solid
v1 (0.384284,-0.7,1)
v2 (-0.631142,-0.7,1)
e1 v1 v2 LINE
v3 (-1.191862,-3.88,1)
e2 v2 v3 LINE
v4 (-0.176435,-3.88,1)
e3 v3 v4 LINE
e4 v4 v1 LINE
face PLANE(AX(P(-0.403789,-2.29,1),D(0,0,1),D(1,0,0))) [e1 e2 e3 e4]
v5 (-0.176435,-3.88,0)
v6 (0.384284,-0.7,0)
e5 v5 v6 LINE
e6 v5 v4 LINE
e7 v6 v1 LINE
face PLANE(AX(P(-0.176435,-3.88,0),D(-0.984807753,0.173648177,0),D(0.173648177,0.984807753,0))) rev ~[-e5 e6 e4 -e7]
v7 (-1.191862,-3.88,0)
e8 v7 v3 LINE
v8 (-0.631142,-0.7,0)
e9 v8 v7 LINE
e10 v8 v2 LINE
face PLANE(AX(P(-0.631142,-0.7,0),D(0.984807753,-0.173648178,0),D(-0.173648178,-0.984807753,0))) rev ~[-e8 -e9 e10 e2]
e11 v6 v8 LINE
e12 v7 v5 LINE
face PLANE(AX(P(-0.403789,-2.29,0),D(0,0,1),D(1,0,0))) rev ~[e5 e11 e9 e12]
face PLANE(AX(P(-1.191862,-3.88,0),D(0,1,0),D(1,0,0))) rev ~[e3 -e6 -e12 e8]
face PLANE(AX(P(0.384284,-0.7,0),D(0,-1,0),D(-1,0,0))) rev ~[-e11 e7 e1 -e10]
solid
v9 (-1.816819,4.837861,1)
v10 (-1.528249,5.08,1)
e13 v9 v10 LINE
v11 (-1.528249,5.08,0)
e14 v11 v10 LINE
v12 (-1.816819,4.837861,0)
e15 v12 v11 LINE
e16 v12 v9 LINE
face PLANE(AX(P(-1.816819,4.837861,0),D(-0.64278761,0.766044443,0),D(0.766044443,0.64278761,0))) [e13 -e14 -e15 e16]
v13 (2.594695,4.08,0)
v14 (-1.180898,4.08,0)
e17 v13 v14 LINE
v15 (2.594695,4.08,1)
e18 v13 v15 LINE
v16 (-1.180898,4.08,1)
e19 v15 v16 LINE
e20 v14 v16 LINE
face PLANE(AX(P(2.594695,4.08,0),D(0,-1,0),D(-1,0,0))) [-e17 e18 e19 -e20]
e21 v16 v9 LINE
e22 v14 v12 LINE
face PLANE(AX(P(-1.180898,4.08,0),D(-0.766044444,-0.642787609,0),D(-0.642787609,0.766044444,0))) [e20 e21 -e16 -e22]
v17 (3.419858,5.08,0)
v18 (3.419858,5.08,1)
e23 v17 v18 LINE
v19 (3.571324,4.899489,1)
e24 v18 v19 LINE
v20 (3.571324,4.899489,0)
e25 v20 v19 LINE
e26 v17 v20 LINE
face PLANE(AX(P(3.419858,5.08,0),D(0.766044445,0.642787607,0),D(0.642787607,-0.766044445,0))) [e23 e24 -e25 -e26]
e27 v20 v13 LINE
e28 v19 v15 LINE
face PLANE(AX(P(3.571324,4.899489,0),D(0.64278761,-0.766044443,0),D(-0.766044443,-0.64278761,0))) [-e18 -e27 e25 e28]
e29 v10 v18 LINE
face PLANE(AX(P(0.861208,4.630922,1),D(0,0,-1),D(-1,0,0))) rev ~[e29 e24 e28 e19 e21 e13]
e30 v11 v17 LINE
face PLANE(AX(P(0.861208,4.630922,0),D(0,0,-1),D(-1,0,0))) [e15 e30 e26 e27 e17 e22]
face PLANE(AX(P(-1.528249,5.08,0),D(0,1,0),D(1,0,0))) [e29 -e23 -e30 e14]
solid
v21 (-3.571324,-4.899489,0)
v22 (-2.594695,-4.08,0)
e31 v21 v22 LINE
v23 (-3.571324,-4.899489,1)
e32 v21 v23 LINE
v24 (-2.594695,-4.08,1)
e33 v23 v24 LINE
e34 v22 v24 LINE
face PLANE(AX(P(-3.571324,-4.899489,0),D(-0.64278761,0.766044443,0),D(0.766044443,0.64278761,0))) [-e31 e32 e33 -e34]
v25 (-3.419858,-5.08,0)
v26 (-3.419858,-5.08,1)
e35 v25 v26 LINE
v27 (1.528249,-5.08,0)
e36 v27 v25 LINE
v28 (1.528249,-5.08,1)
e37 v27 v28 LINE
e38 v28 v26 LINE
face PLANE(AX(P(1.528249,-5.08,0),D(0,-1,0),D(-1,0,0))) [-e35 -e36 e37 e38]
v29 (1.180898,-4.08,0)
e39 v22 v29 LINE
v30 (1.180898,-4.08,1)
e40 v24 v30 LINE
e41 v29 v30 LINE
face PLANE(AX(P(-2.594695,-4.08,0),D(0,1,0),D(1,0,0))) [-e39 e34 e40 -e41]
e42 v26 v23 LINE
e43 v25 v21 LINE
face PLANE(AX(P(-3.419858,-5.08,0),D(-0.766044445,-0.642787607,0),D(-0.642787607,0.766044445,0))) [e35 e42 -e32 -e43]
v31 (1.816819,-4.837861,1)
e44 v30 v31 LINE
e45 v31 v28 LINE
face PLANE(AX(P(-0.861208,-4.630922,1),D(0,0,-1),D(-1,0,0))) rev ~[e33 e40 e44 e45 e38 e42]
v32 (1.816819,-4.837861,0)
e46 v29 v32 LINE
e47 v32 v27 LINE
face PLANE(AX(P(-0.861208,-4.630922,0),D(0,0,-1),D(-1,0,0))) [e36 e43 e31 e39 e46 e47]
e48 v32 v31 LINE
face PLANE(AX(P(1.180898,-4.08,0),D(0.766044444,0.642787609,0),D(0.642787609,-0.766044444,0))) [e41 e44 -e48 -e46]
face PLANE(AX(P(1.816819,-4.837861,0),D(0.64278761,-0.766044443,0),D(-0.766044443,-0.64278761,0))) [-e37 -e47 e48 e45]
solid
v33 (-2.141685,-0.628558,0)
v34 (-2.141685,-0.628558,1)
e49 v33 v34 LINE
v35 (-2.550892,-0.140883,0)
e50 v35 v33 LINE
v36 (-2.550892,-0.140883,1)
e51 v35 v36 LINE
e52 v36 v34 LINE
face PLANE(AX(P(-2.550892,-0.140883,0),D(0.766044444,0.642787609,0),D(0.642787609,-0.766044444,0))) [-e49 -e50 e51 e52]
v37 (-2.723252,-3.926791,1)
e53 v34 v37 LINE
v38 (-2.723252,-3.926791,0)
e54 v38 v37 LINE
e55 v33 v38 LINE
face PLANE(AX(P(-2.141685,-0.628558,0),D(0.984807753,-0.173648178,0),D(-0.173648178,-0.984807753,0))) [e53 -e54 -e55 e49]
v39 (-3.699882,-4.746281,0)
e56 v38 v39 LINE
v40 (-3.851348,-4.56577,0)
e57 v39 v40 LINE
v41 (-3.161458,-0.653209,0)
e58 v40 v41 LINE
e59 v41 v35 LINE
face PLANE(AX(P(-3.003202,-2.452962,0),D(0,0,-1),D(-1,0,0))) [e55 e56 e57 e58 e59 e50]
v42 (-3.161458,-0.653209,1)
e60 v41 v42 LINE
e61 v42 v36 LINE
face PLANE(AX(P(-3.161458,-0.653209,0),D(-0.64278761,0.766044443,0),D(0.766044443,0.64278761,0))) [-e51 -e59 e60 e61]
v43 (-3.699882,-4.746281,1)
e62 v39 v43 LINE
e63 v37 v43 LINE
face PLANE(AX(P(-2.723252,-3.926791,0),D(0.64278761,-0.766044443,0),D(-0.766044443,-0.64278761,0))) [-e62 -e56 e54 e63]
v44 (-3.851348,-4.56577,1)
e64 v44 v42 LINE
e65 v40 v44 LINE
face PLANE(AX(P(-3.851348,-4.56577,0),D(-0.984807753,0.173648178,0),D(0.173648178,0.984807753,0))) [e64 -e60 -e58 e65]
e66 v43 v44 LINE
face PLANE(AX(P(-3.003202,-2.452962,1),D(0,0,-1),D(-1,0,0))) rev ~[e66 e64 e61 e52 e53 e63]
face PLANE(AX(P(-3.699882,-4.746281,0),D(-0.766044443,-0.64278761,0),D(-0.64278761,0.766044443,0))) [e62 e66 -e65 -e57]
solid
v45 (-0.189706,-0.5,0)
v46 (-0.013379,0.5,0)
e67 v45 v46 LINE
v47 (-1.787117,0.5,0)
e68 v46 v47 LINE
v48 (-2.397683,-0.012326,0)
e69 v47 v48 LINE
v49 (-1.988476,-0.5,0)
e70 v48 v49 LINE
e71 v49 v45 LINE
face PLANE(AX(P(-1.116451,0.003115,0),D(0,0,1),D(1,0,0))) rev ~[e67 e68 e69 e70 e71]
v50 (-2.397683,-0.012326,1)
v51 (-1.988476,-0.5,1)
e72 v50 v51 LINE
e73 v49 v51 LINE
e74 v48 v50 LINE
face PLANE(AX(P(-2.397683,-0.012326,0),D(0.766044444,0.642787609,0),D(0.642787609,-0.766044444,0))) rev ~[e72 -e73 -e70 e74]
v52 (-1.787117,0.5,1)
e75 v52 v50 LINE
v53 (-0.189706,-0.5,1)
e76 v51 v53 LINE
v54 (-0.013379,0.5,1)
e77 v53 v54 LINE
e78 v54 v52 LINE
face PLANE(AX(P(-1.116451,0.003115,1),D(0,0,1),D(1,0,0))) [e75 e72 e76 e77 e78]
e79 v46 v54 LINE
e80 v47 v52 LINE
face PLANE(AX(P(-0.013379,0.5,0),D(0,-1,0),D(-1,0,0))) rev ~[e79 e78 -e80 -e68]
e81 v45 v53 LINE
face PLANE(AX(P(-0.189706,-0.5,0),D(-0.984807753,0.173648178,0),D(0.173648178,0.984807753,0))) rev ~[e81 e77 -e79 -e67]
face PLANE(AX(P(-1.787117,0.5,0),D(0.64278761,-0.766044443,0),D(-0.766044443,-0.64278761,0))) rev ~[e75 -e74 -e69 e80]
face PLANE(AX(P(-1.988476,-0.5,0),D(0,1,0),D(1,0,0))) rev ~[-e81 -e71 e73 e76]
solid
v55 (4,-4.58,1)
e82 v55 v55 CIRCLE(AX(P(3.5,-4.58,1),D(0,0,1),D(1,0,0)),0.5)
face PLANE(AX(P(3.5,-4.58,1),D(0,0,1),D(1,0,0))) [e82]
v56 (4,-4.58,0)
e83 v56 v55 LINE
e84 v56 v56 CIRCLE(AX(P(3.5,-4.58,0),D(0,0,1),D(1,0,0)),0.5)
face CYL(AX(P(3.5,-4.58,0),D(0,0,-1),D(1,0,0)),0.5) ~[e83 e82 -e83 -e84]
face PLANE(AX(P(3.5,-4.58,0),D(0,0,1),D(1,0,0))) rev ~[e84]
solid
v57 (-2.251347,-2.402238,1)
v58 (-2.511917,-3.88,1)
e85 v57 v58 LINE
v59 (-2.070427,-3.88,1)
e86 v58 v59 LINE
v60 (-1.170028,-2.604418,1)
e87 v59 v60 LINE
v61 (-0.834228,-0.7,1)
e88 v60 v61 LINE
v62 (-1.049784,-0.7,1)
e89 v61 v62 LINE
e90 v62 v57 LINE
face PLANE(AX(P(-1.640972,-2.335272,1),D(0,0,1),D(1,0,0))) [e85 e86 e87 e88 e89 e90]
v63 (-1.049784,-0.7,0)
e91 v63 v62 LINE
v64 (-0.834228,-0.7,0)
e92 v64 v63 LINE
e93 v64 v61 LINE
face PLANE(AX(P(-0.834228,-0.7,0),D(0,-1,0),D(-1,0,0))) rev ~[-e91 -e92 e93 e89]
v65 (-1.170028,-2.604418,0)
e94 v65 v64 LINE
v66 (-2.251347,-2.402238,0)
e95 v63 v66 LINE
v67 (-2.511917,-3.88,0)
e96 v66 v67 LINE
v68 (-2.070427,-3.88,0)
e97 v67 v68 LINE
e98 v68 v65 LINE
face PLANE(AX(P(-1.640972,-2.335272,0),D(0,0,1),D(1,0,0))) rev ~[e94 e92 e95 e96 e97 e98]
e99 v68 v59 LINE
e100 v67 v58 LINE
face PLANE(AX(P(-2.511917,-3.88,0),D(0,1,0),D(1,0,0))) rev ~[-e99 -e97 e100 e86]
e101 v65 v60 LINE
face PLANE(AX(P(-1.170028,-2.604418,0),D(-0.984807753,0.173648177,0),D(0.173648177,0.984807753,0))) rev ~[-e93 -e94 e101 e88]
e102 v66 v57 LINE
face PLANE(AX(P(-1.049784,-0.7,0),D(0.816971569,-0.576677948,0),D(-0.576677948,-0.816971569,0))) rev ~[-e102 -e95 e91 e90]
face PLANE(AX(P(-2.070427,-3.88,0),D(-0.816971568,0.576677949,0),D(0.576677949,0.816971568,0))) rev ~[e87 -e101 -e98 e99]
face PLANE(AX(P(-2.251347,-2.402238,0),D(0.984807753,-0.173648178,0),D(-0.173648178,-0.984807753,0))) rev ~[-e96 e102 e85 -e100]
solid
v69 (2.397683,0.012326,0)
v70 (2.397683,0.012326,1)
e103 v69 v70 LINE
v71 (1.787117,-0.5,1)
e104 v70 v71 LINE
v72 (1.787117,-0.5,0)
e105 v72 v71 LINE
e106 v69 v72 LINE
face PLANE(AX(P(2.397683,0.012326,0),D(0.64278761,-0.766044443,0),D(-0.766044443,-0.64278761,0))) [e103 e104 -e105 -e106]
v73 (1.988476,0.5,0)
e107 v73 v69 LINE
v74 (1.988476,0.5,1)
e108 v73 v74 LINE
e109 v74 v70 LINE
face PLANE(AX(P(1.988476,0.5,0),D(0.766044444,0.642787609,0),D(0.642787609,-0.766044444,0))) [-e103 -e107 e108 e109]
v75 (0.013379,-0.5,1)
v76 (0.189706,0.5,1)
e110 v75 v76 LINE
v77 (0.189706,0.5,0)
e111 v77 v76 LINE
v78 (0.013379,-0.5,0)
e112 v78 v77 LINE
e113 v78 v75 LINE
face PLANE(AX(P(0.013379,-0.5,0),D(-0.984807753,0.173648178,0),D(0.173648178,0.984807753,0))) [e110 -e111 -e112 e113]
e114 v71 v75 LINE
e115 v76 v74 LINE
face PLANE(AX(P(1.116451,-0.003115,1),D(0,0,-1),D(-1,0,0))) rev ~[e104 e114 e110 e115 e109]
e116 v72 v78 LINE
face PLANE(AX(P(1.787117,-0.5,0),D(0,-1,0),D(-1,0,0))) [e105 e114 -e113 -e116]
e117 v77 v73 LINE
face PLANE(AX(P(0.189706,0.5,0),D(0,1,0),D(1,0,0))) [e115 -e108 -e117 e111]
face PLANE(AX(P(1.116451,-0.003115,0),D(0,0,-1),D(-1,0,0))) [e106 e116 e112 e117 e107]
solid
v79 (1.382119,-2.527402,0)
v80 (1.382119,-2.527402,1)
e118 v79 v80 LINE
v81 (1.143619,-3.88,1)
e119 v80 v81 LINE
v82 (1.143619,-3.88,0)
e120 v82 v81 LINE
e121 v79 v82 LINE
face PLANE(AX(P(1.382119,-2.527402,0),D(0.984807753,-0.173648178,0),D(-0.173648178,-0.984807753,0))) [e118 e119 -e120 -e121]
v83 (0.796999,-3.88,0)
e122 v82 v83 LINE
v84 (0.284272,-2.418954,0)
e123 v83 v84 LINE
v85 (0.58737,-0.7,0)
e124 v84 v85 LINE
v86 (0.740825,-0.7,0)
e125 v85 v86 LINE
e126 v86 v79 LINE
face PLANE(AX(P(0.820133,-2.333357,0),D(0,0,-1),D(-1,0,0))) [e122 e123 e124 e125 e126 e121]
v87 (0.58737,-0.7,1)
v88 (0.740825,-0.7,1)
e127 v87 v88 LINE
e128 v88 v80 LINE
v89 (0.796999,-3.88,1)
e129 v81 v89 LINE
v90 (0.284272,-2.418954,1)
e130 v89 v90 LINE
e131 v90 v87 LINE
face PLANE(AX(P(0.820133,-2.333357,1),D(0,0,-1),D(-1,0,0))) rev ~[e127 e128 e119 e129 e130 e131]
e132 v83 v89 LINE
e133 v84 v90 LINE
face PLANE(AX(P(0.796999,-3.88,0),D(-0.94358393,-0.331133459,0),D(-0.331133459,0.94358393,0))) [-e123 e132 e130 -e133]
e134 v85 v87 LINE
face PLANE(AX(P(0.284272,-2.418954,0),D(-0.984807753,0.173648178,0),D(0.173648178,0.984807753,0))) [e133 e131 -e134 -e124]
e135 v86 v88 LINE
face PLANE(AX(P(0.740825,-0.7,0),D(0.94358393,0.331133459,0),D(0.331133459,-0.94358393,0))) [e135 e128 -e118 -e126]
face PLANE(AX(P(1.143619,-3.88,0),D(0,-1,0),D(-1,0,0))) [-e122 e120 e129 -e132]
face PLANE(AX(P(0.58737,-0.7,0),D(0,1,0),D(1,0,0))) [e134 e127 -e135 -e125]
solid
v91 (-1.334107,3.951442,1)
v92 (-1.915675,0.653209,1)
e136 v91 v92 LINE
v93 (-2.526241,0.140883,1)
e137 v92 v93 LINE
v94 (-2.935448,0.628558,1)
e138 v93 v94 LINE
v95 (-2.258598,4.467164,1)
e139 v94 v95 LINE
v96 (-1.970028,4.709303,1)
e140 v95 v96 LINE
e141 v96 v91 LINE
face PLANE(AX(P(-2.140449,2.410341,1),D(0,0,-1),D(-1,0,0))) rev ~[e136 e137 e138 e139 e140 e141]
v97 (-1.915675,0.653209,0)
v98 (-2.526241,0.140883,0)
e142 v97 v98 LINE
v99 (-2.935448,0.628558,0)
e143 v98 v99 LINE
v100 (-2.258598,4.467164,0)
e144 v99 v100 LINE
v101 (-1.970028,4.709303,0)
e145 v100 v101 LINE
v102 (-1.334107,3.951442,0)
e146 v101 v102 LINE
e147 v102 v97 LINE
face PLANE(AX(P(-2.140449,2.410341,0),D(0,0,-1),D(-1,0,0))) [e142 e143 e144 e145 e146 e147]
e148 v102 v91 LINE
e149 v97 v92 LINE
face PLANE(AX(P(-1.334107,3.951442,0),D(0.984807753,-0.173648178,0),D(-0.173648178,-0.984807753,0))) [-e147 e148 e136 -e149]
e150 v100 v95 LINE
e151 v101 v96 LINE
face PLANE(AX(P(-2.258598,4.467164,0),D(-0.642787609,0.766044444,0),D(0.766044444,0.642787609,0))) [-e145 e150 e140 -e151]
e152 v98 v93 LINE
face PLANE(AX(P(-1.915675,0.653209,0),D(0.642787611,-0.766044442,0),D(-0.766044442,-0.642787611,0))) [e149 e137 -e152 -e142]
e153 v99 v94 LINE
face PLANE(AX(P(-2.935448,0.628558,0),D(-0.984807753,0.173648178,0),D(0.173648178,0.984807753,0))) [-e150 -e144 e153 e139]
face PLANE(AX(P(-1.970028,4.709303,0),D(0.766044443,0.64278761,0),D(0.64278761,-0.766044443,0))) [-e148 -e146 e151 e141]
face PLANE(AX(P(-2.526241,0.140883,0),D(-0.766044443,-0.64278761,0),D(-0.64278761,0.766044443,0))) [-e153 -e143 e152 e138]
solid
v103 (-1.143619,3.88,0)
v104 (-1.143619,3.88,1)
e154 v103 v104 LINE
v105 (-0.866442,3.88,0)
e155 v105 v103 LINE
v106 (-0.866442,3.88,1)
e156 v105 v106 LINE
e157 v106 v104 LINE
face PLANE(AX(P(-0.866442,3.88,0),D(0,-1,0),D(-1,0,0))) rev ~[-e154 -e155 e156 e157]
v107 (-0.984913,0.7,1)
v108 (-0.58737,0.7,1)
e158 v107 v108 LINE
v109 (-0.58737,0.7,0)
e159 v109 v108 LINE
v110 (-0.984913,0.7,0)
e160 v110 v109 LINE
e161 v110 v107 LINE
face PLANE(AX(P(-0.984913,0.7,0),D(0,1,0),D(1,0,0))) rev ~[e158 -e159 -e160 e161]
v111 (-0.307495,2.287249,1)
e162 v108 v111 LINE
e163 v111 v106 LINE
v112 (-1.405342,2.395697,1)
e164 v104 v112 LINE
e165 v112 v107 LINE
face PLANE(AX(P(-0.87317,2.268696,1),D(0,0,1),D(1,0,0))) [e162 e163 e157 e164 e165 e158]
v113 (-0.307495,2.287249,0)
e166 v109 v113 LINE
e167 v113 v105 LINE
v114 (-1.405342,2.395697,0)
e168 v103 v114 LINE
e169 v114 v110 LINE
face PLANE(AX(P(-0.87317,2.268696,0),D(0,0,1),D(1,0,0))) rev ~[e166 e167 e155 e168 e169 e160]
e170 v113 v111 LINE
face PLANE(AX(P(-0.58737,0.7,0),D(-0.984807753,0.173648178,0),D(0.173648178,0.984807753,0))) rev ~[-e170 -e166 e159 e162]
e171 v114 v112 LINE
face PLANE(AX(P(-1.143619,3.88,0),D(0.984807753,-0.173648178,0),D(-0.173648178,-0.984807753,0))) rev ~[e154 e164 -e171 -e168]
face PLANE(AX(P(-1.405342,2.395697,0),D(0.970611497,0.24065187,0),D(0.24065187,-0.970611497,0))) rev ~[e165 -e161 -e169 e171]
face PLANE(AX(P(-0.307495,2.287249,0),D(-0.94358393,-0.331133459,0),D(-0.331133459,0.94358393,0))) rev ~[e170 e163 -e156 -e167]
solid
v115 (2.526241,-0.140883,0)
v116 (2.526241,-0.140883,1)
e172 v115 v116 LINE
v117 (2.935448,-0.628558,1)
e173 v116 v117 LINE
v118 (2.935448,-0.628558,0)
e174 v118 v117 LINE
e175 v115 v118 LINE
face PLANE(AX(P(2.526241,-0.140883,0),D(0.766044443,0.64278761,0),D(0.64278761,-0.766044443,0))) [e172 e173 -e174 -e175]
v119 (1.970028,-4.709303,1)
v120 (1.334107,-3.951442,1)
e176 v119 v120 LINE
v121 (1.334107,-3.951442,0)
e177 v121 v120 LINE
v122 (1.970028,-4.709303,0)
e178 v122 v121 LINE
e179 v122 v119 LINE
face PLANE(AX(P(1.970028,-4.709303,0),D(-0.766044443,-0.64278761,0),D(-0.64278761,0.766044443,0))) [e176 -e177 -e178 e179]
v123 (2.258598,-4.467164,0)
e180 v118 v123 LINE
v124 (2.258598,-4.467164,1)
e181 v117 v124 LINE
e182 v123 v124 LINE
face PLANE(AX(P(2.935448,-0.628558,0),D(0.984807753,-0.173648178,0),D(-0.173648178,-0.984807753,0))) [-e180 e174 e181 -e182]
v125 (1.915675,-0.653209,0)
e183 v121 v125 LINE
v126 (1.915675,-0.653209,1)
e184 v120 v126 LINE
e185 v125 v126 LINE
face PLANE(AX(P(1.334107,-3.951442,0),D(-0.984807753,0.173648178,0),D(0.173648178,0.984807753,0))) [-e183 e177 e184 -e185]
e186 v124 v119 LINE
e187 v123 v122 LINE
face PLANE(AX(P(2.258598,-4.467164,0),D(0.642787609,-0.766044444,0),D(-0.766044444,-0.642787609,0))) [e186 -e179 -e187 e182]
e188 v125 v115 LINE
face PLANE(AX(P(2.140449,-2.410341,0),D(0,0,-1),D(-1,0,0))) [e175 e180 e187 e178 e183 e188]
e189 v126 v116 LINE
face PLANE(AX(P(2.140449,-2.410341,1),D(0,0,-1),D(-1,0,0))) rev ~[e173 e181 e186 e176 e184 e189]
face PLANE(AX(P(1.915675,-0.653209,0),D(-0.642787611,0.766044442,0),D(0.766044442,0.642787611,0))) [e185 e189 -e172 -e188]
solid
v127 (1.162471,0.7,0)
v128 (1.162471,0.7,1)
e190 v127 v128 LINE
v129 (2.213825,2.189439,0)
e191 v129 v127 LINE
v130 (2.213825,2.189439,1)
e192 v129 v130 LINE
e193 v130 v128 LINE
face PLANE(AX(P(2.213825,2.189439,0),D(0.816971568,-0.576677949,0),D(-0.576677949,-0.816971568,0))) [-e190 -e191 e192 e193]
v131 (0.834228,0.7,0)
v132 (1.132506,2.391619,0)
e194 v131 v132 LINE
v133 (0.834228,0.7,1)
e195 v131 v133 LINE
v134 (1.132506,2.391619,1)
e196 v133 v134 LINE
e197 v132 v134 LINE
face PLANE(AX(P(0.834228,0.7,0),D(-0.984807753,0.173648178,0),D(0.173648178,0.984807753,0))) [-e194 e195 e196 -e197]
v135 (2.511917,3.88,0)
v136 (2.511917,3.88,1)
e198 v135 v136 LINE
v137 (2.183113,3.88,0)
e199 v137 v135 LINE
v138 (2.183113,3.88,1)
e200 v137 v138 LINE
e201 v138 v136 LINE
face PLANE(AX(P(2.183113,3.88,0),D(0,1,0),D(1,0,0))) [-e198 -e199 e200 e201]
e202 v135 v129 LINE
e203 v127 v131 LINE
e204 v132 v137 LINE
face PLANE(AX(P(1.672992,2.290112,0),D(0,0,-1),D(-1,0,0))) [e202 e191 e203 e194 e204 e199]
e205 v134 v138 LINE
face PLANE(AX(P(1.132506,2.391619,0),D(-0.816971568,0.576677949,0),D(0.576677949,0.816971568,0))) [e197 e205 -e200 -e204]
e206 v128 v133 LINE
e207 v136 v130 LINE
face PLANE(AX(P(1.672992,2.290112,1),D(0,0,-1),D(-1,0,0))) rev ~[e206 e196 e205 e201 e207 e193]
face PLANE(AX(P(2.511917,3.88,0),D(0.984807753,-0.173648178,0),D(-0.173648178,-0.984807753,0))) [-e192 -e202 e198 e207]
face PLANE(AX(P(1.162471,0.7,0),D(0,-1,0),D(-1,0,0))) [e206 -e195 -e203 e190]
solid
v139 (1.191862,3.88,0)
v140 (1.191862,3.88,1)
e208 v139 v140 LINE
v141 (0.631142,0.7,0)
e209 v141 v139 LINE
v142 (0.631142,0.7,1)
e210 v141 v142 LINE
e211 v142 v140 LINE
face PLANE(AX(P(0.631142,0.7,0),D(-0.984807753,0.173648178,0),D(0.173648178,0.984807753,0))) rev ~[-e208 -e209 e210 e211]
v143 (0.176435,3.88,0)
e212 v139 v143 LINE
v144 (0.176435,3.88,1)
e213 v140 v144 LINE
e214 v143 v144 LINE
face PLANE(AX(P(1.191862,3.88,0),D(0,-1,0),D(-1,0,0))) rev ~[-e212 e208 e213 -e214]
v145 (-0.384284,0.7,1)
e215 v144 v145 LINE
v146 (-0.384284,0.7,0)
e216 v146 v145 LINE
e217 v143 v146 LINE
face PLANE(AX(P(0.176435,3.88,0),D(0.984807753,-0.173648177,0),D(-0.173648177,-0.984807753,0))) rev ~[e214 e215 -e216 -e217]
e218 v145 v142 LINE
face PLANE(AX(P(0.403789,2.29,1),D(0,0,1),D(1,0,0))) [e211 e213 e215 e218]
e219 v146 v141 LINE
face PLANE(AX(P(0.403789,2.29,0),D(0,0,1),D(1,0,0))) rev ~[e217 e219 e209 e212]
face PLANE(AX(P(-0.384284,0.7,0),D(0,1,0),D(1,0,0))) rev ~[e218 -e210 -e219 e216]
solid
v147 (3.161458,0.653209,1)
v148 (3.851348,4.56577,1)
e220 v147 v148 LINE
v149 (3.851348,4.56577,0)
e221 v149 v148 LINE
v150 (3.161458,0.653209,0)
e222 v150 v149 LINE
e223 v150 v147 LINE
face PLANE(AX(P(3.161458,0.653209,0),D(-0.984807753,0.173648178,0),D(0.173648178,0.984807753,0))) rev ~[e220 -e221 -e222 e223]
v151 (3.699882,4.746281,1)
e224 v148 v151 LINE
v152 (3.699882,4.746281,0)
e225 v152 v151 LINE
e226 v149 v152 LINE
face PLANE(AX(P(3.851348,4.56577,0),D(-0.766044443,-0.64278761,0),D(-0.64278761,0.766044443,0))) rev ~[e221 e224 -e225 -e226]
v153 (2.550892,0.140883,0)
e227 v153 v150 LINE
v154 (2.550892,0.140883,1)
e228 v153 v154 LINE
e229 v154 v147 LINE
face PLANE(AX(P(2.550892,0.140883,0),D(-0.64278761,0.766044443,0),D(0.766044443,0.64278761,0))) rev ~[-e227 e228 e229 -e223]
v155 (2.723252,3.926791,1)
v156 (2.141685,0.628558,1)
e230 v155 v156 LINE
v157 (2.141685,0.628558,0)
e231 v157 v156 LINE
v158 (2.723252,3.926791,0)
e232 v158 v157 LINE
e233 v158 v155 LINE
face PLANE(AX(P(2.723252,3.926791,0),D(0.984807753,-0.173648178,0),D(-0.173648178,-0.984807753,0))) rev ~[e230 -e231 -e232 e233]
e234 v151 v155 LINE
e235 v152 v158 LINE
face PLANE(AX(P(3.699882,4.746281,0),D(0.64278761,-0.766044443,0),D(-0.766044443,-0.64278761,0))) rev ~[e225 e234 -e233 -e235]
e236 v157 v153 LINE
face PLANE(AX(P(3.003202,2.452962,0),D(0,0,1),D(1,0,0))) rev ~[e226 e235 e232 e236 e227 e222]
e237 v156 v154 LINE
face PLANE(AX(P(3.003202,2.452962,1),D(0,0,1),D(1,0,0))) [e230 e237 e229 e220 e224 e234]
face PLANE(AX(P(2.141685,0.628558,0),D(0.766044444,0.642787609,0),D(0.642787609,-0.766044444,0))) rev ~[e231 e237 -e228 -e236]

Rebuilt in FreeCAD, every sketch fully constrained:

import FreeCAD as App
import Part
import Sketcher
from FreeCAD import Vector
Q = App.Units.Quantity

doc = App.newDocument("Part")
body = doc.addObject("PartDesign::Body", "Body")

# Sketch on XY plane
sketch1 = doc.addObject("Sketcher::SketchObject", "Sketch")
body.addObject(sketch1)
sketch1.AttachmentSupport = (doc.XY_Plane, [""])
sketch1.MapMode = "FlatFace"
sketch1.addGeometry([
    Part.LineSegment(Vector(-2.258598, 4.467164, 0), Vector(-2.935448, 0.628558, 0)),  # 0
    Part.LineSegment(Vector(-2.935448, 0.628558, 0), Vector(-2.526241, 0.140883, 0)),  # 1
    Part.LineSegment(Vector(-2.526241, 0.140883, 0), Vector(-1.915675, 0.653209, 0)),  # 2
    Part.LineSegment(Vector(-1.915675, 0.653209, 0), Vector(-1.334107, 3.951442, 0)),  # 3
    Part.LineSegment(Vector(-1.334107, 3.951442, 0), Vector(-1.970028, 4.709303, 0)),  # 4
    Part.LineSegment(Vector(-1.970028, 4.709303, 0), Vector(-2.258598, 4.467164, 0)),  # 5
], False)
sketch1.addConstraint([
    Sketcher.Constraint("Coincident", 0, 2, 1, 1),
    Sketcher.Constraint("Coincident", 1, 2, 2, 1),
    Sketcher.Constraint("Coincident", 2, 2, 3, 1),
    Sketcher.Constraint("Coincident", 3, 2, 4, 1),
    Sketcher.Constraint("Coincident", 4, 2, 5, 1),
    Sketcher.Constraint("Coincident", 5, 2, 0, 1),
    Sketcher.Constraint("Perpendicular", 1, 2),
    Sketcher.Constraint("Parallel", 0, 3),
    Sketcher.Constraint("Perpendicular", 2, 4),
    Sketcher.Constraint("Perpendicular", 4, 5),
    Sketcher.Constraint("Angle", 0, Q("-100 deg")),
    Sketcher.Constraint("Angle", 1, Q("-50 deg")),
    Sketcher.Constraint("Distance", 5, 0.376701),
    Sketcher.Constraint("DistanceX", 5, 2, -1, 1, 2.258598),
    Sketcher.Constraint("DistanceX", 0, 2, -1, 1, 2.935448),
    Sketcher.Constraint("DistanceX", 1, 2, -1, 1, 2.526241),
    Sketcher.Constraint("DistanceY", -1, 1, 2, 2, 0.653209),
    Sketcher.Constraint("DistanceY", 0, 2, 2, 2, 0.024651),
])
pad1 = doc.addObject("PartDesign::Pad", "Pad")
body.addObject(pad1)
pad1.Profile = sketch1
pad1.Length = 1
body2 = doc.addObject("PartDesign::Body", "Body001")

# Sketch on XY plane
sketch2 = doc.addObject("Sketcher::SketchObject", "Sketch001")
body2.addObject(sketch2)
sketch2.AttachmentSupport = (doc.getObject("XY_Plane001"), [""])
sketch2.MapMode = "FlatFace"
sketch2.addGeometry([
    Part.LineSegment(Vector(-2.550892, -0.140883, 0), Vector(-3.161458, -0.653209, 0)),  # 0
    Part.LineSegment(Vector(-3.161458, -0.653209, 0), Vector(-3.851348, -4.56577, 0)),  # 1
    Part.LineSegment(Vector(-3.851348, -4.56577, 0), Vector(-3.699882, -4.746281, 0)),  # 2
    Part.LineSegment(Vector(-3.699882, -4.746281, 0), Vector(-2.723252, -3.926791, 0)),  # 3
    Part.LineSegment(Vector(-2.723252, -3.926791, 0), Vector(-2.141685, -0.628558, 0)),  # 4
    Part.LineSegment(Vector(-2.141685, -0.628558, 0), Vector(-2.550892, -0.140883, 0)),  # 5
], False)
sketch2.addConstraint([
    Sketcher.Constraint("Coincident", 0, 2, 1, 1),
    Sketcher.Constraint("Coincident", 1, 2, 2, 1),
    Sketcher.Constraint("Coincident", 2, 2, 3, 1),
    Sketcher.Constraint("Coincident", 3, 2, 4, 1),
    Sketcher.Constraint("Coincident", 4, 2, 5, 1),
    Sketcher.Constraint("Coincident", 5, 2, 0, 1),
    Sketcher.Constraint("Perpendicular", 0, 2),
    Sketcher.Constraint("Perpendicular", 2, 3),
    Sketcher.Constraint("Parallel", 1, 4),
    Sketcher.Constraint("Perpendicular", 3, 5),
    Sketcher.Constraint("Angle", 0, Q("-140 deg")),
    Sketcher.Constraint("Angle", 1, Q("-100 deg")),
    Sketcher.Constraint("Distance", 3, 1.274899),
    Sketcher.Constraint("Distance", 1, 3.972919),
    Sketcher.Constraint("Distance", 2, 0.23564),
    Sketcher.Constraint("DistanceX", 0, 2, -1, 1, 3.161458),
    Sketcher.Constraint("DistanceY", 0, 2, -1, 1, 0.653209),
    Sketcher.Constraint("DistanceY", 0, 2, 4, 2, 0.024651),
])
pad2 = doc.addObject("PartDesign::Pad", "Pad001")
body2.addObject(pad2)
pad2.Profile = sketch2
pad2.Length = 1
body3 = doc.addObject("PartDesign::Body", "Body002")

# Sketch on XY plane
sketch3 = doc.addObject("Sketcher::SketchObject", "Sketch002")
body3.addObject(sketch3)
sketch3.AttachmentSupport = (doc.getObject("XY_Plane002"), [""])
sketch3.MapMode = "FlatFace"
sketch3.addGeometry([
    Part.LineSegment(Vector(-2.594695, -4.08, 0), Vector(-3.571324, -4.899489, 0)),  # 0
    Part.LineSegment(Vector(-3.571324, -4.899489, 0), Vector(-3.419858, -5.08, 0)),  # 1
    Part.LineSegment(Vector(-3.419858, -5.08, 0), Vector(1.528249, -5.08, 0)),  # 2
    Part.LineSegment(Vector(1.528249, -5.08, 0), Vector(1.816819, -4.837861, 0)),  # 3
    Part.LineSegment(Vector(1.816819, -4.837861, 0), Vector(1.180898, -4.08, 0)),  # 4
    Part.LineSegment(Vector(1.180898, -4.08, 0), Vector(-2.594695, -4.08, 0)),  # 5
], False)
sketch3.addConstraint([
    Sketcher.Constraint("Coincident", 0, 2, 1, 1),
    Sketcher.Constraint("Coincident", 1, 2, 2, 1),
    Sketcher.Constraint("Coincident", 2, 2, 3, 1),
    Sketcher.Constraint("Coincident", 3, 2, 4, 1),
    Sketcher.Constraint("Coincident", 4, 2, 5, 1),
    Sketcher.Constraint("Coincident", 5, 2, 0, 1),
    Sketcher.Constraint("Horizontal", 2),
    Sketcher.Constraint("Horizontal", 5),
    Sketcher.Constraint("Perpendicular", 0, 1),
    Sketcher.Constraint("Perpendicular", 1, 3),
    Sketcher.Constraint("Perpendicular", 3, 4),
    Sketcher.Constraint("Angle", 0, Q("-140 deg")),
    Sketcher.Constraint("DistanceY", 2, 2, 4, 2, 1.0),
    Sketcher.Constraint("DistanceY", 1, 2, -1, 1, 5.08),
    Sketcher.Constraint("Distance", 0, 1.274899),
    Sketcher.Constraint("Distance", 3, 0.376701),
    Sketcher.Constraint("DistanceX", -1, 1, 4, 2, 1.180898),
    Sketcher.Constraint("DistanceX", 2, 1, 2, 2, 4.948107),
])
pad3 = doc.addObject("PartDesign::Pad", "Pad002")
body3.addObject(pad3)
pad3.Profile = sketch3
pad3.Length = 1
body4 = doc.addObject("PartDesign::Body", "Body003")

# Sketch on XY plane
sketch4 = doc.addObject("Sketcher::SketchObject", "Sketch003")
body4.addObject(sketch4)
sketch4.AttachmentSupport = (doc.getObject("XY_Plane003"), [""])
sketch4.MapMode = "FlatFace"
sketch4.addGeometry([
    Part.LineSegment(Vector(2.526241, -0.140883, 0), Vector(1.915675, -0.653209, 0)),  # 0
    Part.LineSegment(Vector(1.915675, -0.653209, 0), Vector(1.334107, -3.951442, 0)),  # 1
    Part.LineSegment(Vector(1.334107, -3.951442, 0), Vector(1.970028, -4.709303, 0)),  # 2
    Part.LineSegment(Vector(1.970028, -4.709303, 0), Vector(2.258598, -4.467164, 0)),  # 3
    Part.LineSegment(Vector(2.258598, -4.467164, 0), Vector(2.935448, -0.628558, 0)),  # 4
    Part.LineSegment(Vector(2.935448, -0.628558, 0), Vector(2.526241, -0.140883, 0)),  # 5
], False)
sketch4.addConstraint([
    Sketcher.Constraint("Coincident", 0, 2, 1, 1),
    Sketcher.Constraint("Coincident", 1, 2, 2, 1),
    Sketcher.Constraint("Coincident", 2, 2, 3, 1),
    Sketcher.Constraint("Coincident", 3, 2, 4, 1),
    Sketcher.Constraint("Coincident", 4, 2, 5, 1),
    Sketcher.Constraint("Coincident", 5, 2, 0, 1),
    Sketcher.Constraint("Perpendicular", 0, 2),
    Sketcher.Constraint("Perpendicular", 2, 3),
    Sketcher.Constraint("Parallel", 1, 4),
    Sketcher.Constraint("Perpendicular", 3, 5),
    Sketcher.Constraint("Angle", 0, Q("-140 deg")),
    Sketcher.Constraint("Angle", 1, Q("-100 deg")),
    Sketcher.Constraint("Distance", 3, 0.376701),
    Sketcher.Constraint("DistanceX", -1, 1, 3, 2, 2.258598),
    Sketcher.Constraint("DistanceY", 0, 2, -1, 1, 0.653209),
    Sketcher.Constraint("DistanceX", -1, 1, 4, 2, 2.935448),
    Sketcher.Constraint("DistanceX", -1, 1, 5, 2, 2.526241),
    Sketcher.Constraint("DistanceX", 1, 2, 2, 2, 0.635921),
])
pad4 = doc.addObject("PartDesign::Pad", "Pad003")
body4.addObject(pad4)
pad4.Profile = sketch4
pad4.Length = 1
body5 = doc.addObject("PartDesign::Body", "Body004")

# Sketch on XY plane
sketch5 = doc.addObject("Sketcher::SketchObject", "Sketch004")
body5.addObject(sketch5)
sketch5.AttachmentSupport = (doc.getObject("XY_Plane004"), [""])
sketch5.MapMode = "FlatFace"
sketch5.addGeometry([
    Part.LineSegment(Vector(2.141685, 0.628558, 0), Vector(2.550892, 0.140883, 0)),  # 0
    Part.LineSegment(Vector(2.550892, 0.140883, 0), Vector(3.161458, 0.653209, 0)),  # 1
    Part.LineSegment(Vector(3.161458, 0.653209, 0), Vector(3.851348, 4.56577, 0)),  # 2
    Part.LineSegment(Vector(3.851348, 4.56577, 0), Vector(3.699882, 4.746281, 0)),  # 3
    Part.LineSegment(Vector(3.699882, 4.746281, 0), Vector(2.723252, 3.926791, 0)),  # 4
    Part.LineSegment(Vector(2.723252, 3.926791, 0), Vector(2.141685, 0.628558, 0)),  # 5
], False)
sketch5.addConstraint([
    Sketcher.Constraint("Coincident", 0, 2, 1, 1),
    Sketcher.Constraint("Coincident", 1, 2, 2, 1),
    Sketcher.Constraint("Coincident", 2, 2, 3, 1),
    Sketcher.Constraint("Coincident", 3, 2, 4, 1),
    Sketcher.Constraint("Coincident", 4, 2, 5, 1),
    Sketcher.Constraint("Coincident", 5, 2, 0, 1),
    Sketcher.Constraint("Perpendicular", 0, 1),
    Sketcher.Constraint("Perpendicular", 1, 3),
    Sketcher.Constraint("Perpendicular", 3, 4),
    Sketcher.Constraint("Parallel", 2, 5),
    Sketcher.Constraint("Angle", 0, Q("-50 deg")),
    Sketcher.Constraint("Angle", 2, Q("80 deg")),
    Sketcher.Constraint("Distance", 4, 1.274899),
    Sketcher.Constraint("Distance", 2, 3.972919),
    Sketcher.Constraint("Distance", 3, 0.23564),
    Sketcher.Constraint("DistanceX", -1, 1, 1, 2, 3.161458),
    Sketcher.Constraint("DistanceY", -1, 1, 1, 2, 0.653209),
    Sketcher.Constraint("DistanceX", 0, 2, 3, 2, 1.14899),
])
pad5 = doc.addObject("PartDesign::Pad", "Pad004")
body5.addObject(pad5)
pad5.Profile = sketch5
pad5.Length = 1
body6 = doc.addObject("PartDesign::Body", "Body005")

# Sketch on XY plane
sketch6 = doc.addObject("Sketcher::SketchObject", "Sketch005")
body6.addObject(sketch6)
sketch6.AttachmentSupport = (doc.getObject("XY_Plane005"), [""])
sketch6.MapMode = "FlatFace"
sketch6.addGeometry([
    Part.LineSegment(Vector(-1.528249, 5.08, 0), Vector(-1.816819, 4.837861, 0)),  # 0
    Part.LineSegment(Vector(-1.816819, 4.837861, 0), Vector(-1.180898, 4.08, 0)),  # 1
    Part.LineSegment(Vector(-1.180898, 4.08, 0), Vector(2.594695, 4.08, 0)),  # 2
    Part.LineSegment(Vector(2.594695, 4.08, 0), Vector(3.571324, 4.899489, 0)),  # 3
    Part.LineSegment(Vector(3.571324, 4.899489, 0), Vector(3.419858, 5.08, 0)),  # 4
    Part.LineSegment(Vector(3.419858, 5.08, 0), Vector(-1.528249, 5.08, 0)),  # 5
], False)
sketch6.addConstraint([
    Sketcher.Constraint("Coincident", 0, 2, 1, 1),
    Sketcher.Constraint("Coincident", 1, 2, 2, 1),
    Sketcher.Constraint("Coincident", 2, 2, 3, 1),
    Sketcher.Constraint("Coincident", 3, 2, 4, 1),
    Sketcher.Constraint("Coincident", 4, 2, 5, 1),
    Sketcher.Constraint("Coincident", 5, 2, 0, 1),
    Sketcher.Constraint("Horizontal", 2),
    Sketcher.Constraint("Horizontal", 5),
    Sketcher.Constraint("Perpendicular", 0, 1),
    Sketcher.Constraint("Perpendicular", 1, 3),
    Sketcher.Constraint("Perpendicular", 3, 4),
    Sketcher.Constraint("Angle", 0, Q("-140 deg")),
    Sketcher.Constraint("DistanceY", 2, 2, 4, 2, 1.0),
    Sketcher.Constraint("DistanceY", -1, 1, 1, 2, 4.08),
    Sketcher.Constraint("Distance", 0, 0.376701),
    Sketcher.Constraint("Distance", 3, 1.274899),
    Sketcher.Constraint("DistanceX", 1, 2, -1, 1, 1.180898),
    Sketcher.Constraint("DistanceX", 2, 1, 2, 2, 3.775593),
])
pad6 = doc.addObject("PartDesign::Pad", "Pad005")
body6.addObject(pad6)
pad6.Profile = sketch6
pad6.Length = 1
body7 = doc.addObject("PartDesign::Body", "Body006")

# Sketch on XY plane
sketch7 = doc.addObject("Sketcher::SketchObject", "Sketch006")
body7.addObject(sketch7)
sketch7.AttachmentSupport = (doc.getObject("XY_Plane006"), [""])
sketch7.MapMode = "FlatFace"
sketch7.addGeometry([
    Part.LineSegment(Vector(-1.988476, -0.5, 0), Vector(-0.189706, -0.5, 0)),  # 0
    Part.LineSegment(Vector(-0.189706, -0.5, 0), Vector(-0.013379, 0.5, 0)),  # 1
    Part.LineSegment(Vector(-0.013379, 0.5, 0), Vector(-1.787117, 0.5, 0)),  # 2
    Part.LineSegment(Vector(-1.787117, 0.5, 0), Vector(-2.397683, -0.012326, 0)),  # 3
    Part.LineSegment(Vector(-2.397683, -0.012326, 0), Vector(-1.988476, -0.5, 0)),  # 4
], False)
sketch7.addConstraint([
    Sketcher.Constraint("Coincident", 0, 2, 1, 1),
    Sketcher.Constraint("Coincident", 1, 2, 2, 1),
    Sketcher.Constraint("Coincident", 2, 2, 3, 1),
    Sketcher.Constraint("Coincident", 3, 2, 4, 1),
    Sketcher.Constraint("Coincident", 4, 2, 0, 1),
    Sketcher.Constraint("Horizontal", 0),
    Sketcher.Constraint("Horizontal", 2),
    Sketcher.Constraint("Perpendicular", 3, 4),
    Sketcher.Constraint("Angle", 1, Q("80 deg")),
    Sketcher.Constraint("Angle", 3, Q("-140 deg")),
    Sketcher.Constraint("DistanceY", 0, 2, 1, 2, 1.0),
    Sketcher.Constraint("DistanceY", 0, 2, -1, 1, 0.5),
    Sketcher.Constraint("DistanceX", 0, 1, 0, 2, 1.79877),
    Sketcher.Constraint("DistanceX", 2, 2, 2, 1, 1.773738),
    Sketcher.Constraint("DistanceX", 1, 2, -1, 1, 0.013379),
])
pad7 = doc.addObject("PartDesign::Pad", "Pad006")
body7.addObject(pad7)
pad7.Profile = sketch7
pad7.Length = 1
body8 = doc.addObject("PartDesign::Body", "Body007")

# Sketch on XY plane
sketch8 = doc.addObject("Sketcher::SketchObject", "Sketch007")
body8.addObject(sketch8)
sketch8.AttachmentSupport = (doc.getObject("XY_Plane007"), [""])
sketch8.MapMode = "FlatFace"
sketch8.addGeometry([
    Part.LineSegment(Vector(1.988476, 0.5, 0), Vector(0.189706, 0.5, 0)),  # 0
    Part.LineSegment(Vector(0.189706, 0.5, 0), Vector(0.013379, -0.5, 0)),  # 1
    Part.LineSegment(Vector(0.013379, -0.5, 0), Vector(1.787117, -0.5, 0)),  # 2
    Part.LineSegment(Vector(1.787117, -0.5, 0), Vector(2.397683, 0.012326, 0)),  # 3
    Part.LineSegment(Vector(2.397683, 0.012326, 0), Vector(1.988476, 0.5, 0)),  # 4
], False)
sketch8.addConstraint([
    Sketcher.Constraint("Coincident", 0, 2, 1, 1),
    Sketcher.Constraint("Coincident", 1, 2, 2, 1),
    Sketcher.Constraint("Coincident", 2, 2, 3, 1),
    Sketcher.Constraint("Coincident", 3, 2, 4, 1),
    Sketcher.Constraint("Coincident", 4, 2, 0, 1),
    Sketcher.Constraint("Horizontal", 0),
    Sketcher.Constraint("Horizontal", 2),
    Sketcher.Constraint("Perpendicular", 3, 4),
    Sketcher.Constraint("Angle", 1, Q("-100 deg")),
    Sketcher.Constraint("Angle", 3, Q("40 deg")),
    Sketcher.Constraint("DistanceY", 1, 2, 0, 2, 1.0),
    Sketcher.Constraint("DistanceY", -1, 1, 0, 2, 0.5),
    Sketcher.Constraint("DistanceX", 0, 2, 0, 1, 1.79877),
    Sketcher.Constraint("DistanceX", 2, 1, 2, 2, 1.773738),
    Sketcher.Constraint("DistanceX", -1, 1, 1, 2, 0.013379),
])
pad8 = doc.addObject("PartDesign::Pad", "Pad007")
body8.addObject(pad8)
pad8.Profile = sketch8
pad8.Length = 1
body9 = doc.addObject("PartDesign::Body", "Body008")

# Sketch on XY plane
sketch9 = doc.addObject("Sketcher::SketchObject", "Sketch008")
body9.addObject(sketch9)
sketch9.AttachmentSupport = (doc.getObject("XY_Plane008"), [""])
sketch9.MapMode = "FlatFace"
sketch9.addGeometry([
    Part.LineSegment(Vector(-0.384284, 0.7, 0), Vector(0.631142, 0.7, 0)),
    Part.LineSegment(Vector(0.631142, 0.7, 0), Vector(1.191862, 3.88, 0)),
    Part.LineSegment(Vector(1.191862, 3.88, 0), Vector(0.176435, 3.88, 0)),
    Part.LineSegment(Vector(0.176435, 3.88, 0), Vector(-0.384284, 0.7, 0)),
], False)
sketch9.addConstraint([
    Sketcher.Constraint("Coincident", 0, 2, 1, 1),
    Sketcher.Constraint("Coincident", 1, 2, 2, 1),
    Sketcher.Constraint("Coincident", 2, 2, 3, 1),
    Sketcher.Constraint("Coincident", 3, 2, 0, 1),
    Sketcher.Constraint("Horizontal", 0),
    Sketcher.Constraint("Horizontal", 2),
    Sketcher.Constraint("Parallel", 1, 3),
    Sketcher.Constraint("Angle", 1, Q("80 deg")),
    Sketcher.Constraint("DistanceY", -1, 1, 0, 2, 0.7),
    Sketcher.Constraint("DistanceY", -1, 1, 1, 2, 3.88),
    Sketcher.Constraint("DistanceX", 0, 1, 0, 2, 1.015427),
    Sketcher.Constraint("DistanceX", -1, 1, 1, 2, 1.191862),
])
pad9 = doc.addObject("PartDesign::Pad", "Pad008")
body9.addObject(pad9)
pad9.Profile = sketch9
pad9.Length = 1
body10 = doc.addObject("PartDesign::Body", "Body009")

# Sketch on XY plane
sketch10 = doc.addObject("Sketcher::SketchObject", "Sketch009")
body10.addObject(sketch10)
sketch10.AttachmentSupport = (doc.getObject("XY_Plane009"), [""])
sketch10.MapMode = "FlatFace"
sketch10.addGeometry([
    Part.LineSegment(Vector(-0.631142, -0.7, 0), Vector(-1.191862, -3.88, 0)),
    Part.LineSegment(Vector(-1.191862, -3.88, 0), Vector(-0.176435, -3.88, 0)),
    Part.LineSegment(Vector(-0.176435, -3.88, 0), Vector(0.384284, -0.7, 0)),
    Part.LineSegment(Vector(0.384284, -0.7, 0), Vector(-0.631142, -0.7, 0)),
], False)
sketch10.addConstraint([
    Sketcher.Constraint("Coincident", 0, 2, 1, 1),
    Sketcher.Constraint("Coincident", 1, 2, 2, 1),
    Sketcher.Constraint("Coincident", 2, 2, 3, 1),
    Sketcher.Constraint("Coincident", 3, 2, 0, 1),
    Sketcher.Constraint("Horizontal", 1),
    Sketcher.Constraint("Horizontal", 3),
    Sketcher.Constraint("Parallel", 0, 2),
    Sketcher.Constraint("Angle", 0, Q("-100 deg")),
    Sketcher.Constraint("DistanceY", 2, 2, -1, 1, 0.7),
    Sketcher.Constraint("DistanceY", 0, 2, -1, 1, 3.88),
    Sketcher.Constraint("DistanceX", 1, 1, 1, 2, 1.015427),
    Sketcher.Constraint("DistanceX", 0, 2, -1, 1, 1.191862),
])
pad10 = doc.addObject("PartDesign::Pad", "Pad009")
body10.addObject(pad10)
pad10.Profile = sketch10
pad10.Length = 1
body11 = doc.addObject("PartDesign::Body", "Body010")

# Sketch on XY plane
sketch11 = doc.addObject("Sketcher::SketchObject", "Sketch010")
body11.addObject(sketch11)
sketch11.AttachmentSupport = (doc.getObject("XY_Plane010"), [""])
sketch11.MapMode = "FlatFace"
sketch11.addGeometry(Part.Circle(Vector(3.5, -4.58, 0), Vector(0, 0, 1), 0.5), False)
sketch11.addConstraint([
    Sketcher.Constraint("Diameter", 0, 1.0),
    Sketcher.Constraint("DistanceX", -1, 1, 0, 3, 3.5),
    Sketcher.Constraint("DistanceY", 0, 3, -1, 1, 4.58),
])
pad11 = doc.addObject("PartDesign::Pad", "Pad010")
body11.addObject(pad11)
pad11.Profile = sketch11
pad11.Length = 1
body12 = doc.addObject("PartDesign::Body", "Body011")

# Sketch on XY plane
sketch12 = doc.addObject("Sketcher::SketchObject", "Sketch011")
body12.addObject(sketch12)
sketch12.AttachmentSupport = (doc.getObject("XY_Plane011"), [""])
sketch12.MapMode = "FlatFace"
sketch12.addGeometry([
    Part.LineSegment(Vector(-2.251347, -2.402238, 0), Vector(-2.511917, -3.88, 0)),  # 0
    Part.LineSegment(Vector(-2.511917, -3.88, 0), Vector(-2.070427, -3.88, 0)),  # 1
    Part.LineSegment(Vector(-2.070427, -3.88, 0), Vector(-1.170028, -2.604418, 0)),  # 2
    Part.LineSegment(Vector(-1.170028, -2.604418, 0), Vector(-0.834228, -0.7, 0)),  # 3
    Part.LineSegment(Vector(-0.834228, -0.7, 0), Vector(-1.049784, -0.7, 0)),  # 4
    Part.LineSegment(Vector(-1.049784, -0.7, 0), Vector(-2.251347, -2.402238, 0)),  # 5
], False)
sketch12.addConstraint([
    Sketcher.Constraint("Coincident", 0, 2, 1, 1),
    Sketcher.Constraint("Coincident", 1, 2, 2, 1),
    Sketcher.Constraint("Coincident", 2, 2, 3, 1),
    Sketcher.Constraint("Coincident", 3, 2, 4, 1),
    Sketcher.Constraint("Coincident", 4, 2, 5, 1),
    Sketcher.Constraint("Coincident", 5, 2, 0, 1),
    Sketcher.Constraint("Horizontal", 1),
    Sketcher.Constraint("Horizontal", 4),
    Sketcher.Constraint("Parallel", 0, 3),
    Sketcher.Constraint("Parallel", 2, 5),
    Sketcher.Constraint("Angle", 0, Q("-100 deg")),
    Sketcher.Constraint("DistanceY", 3, 2, -1, 1, 0.7),
    Sketcher.Constraint("DistanceY", 0, 2, -1, 1, 3.88),
    Sketcher.Constraint("DistanceX", 1, 1, 1, 2, 0.44149),
    Sketcher.Constraint("DistanceX", 1, 2, 2, 2, 0.900399),
    Sketcher.Constraint("DistanceX", 2, 2, 3, 2, 0.3358),
    Sketcher.Constraint("Distance", 0, 1.500559),
    Sketcher.Constraint("DistanceX", 0, 2, -1, 1, 2.511917),
])
pad12 = doc.addObject("PartDesign::Pad", "Pad011")
body12.addObject(pad12)
pad12.Profile = sketch12
pad12.Length = 1
body13 = doc.addObject("PartDesign::Body", "Body012")

# Sketch on XY plane
sketch13 = doc.addObject("Sketcher::SketchObject", "Sketch012")
body13.addObject(sketch13)
sketch13.AttachmentSupport = (doc.getObject("XY_Plane012"), [""])
sketch13.MapMode = "FlatFace"
sketch13.addGeometry([
    Part.LineSegment(Vector(0.740825, -0.7, 0), Vector(0.58737, -0.7, 0)),  # 0
    Part.LineSegment(Vector(0.58737, -0.7, 0), Vector(0.284272, -2.418954, 0)),  # 1
    Part.LineSegment(Vector(0.284272, -2.418954, 0), Vector(0.796999, -3.88, 0)),  # 2
    Part.LineSegment(Vector(0.796999, -3.88, 0), Vector(1.143619, -3.88, 0)),  # 3
    Part.LineSegment(Vector(1.143619, -3.88, 0), Vector(1.382119, -2.527402, 0)),  # 4
    Part.LineSegment(Vector(1.382119, -2.527402, 0), Vector(0.740825, -0.7, 0)),  # 5
], False)
sketch13.addConstraint([
    Sketcher.Constraint("Coincident", 0, 2, 1, 1),
    Sketcher.Constraint("Coincident", 1, 2, 2, 1),
    Sketcher.Constraint("Coincident", 2, 2, 3, 1),
    Sketcher.Constraint("Coincident", 3, 2, 4, 1),
    Sketcher.Constraint("Coincident", 4, 2, 5, 1),
    Sketcher.Constraint("Coincident", 5, 2, 0, 1),
    Sketcher.Constraint("Horizontal", 0),
    Sketcher.Constraint("Horizontal", 3),
    Sketcher.Constraint("Parallel", 1, 4),
    Sketcher.Constraint("Parallel", 2, 5),
    Sketcher.Constraint("Angle", 1, Q("-100 deg")),
    Sketcher.Constraint("DistanceY", 0, 2, -1, 1, 0.7),
    Sketcher.Constraint("DistanceY", 2, 2, -1, 1, 3.88),
    Sketcher.Constraint("DistanceX", -1, 1, 2, 2, 0.796999),
    Sketcher.Constraint("Distance", 2, 1.5484),
    Sketcher.Constraint("DistanceX", 3, 1, 3, 2, 0.34662),
    Sketcher.Constraint("DistanceX", 1, 2, 0, 2, 0.303098),
    Sketcher.Constraint("DistanceX", 3, 2, 4, 2, 0.238499),
])
pad13 = doc.addObject("PartDesign::Pad", "Pad012")
body13.addObject(pad13)
pad13.Profile = sketch13
pad13.Length = 1
body14 = doc.addObject("PartDesign::Body", "Body013")

# Sketch on XY plane
sketch14 = doc.addObject("Sketcher::SketchObject", "Sketch013")
body14.addObject(sketch14)
sketch14.AttachmentSupport = (doc.getObject("XY_Plane013"), [""])
sketch14.MapMode = "FlatFace"
sketch14.addGeometry([
    Part.LineSegment(Vector(2.511917, 3.88, 0), Vector(2.183113, 3.88, 0)),  # 0
    Part.LineSegment(Vector(2.183113, 3.88, 0), Vector(1.132506, 2.391619, 0)),  # 1
    Part.LineSegment(Vector(1.132506, 2.391619, 0), Vector(0.834228, 0.7, 0)),  # 2
    Part.LineSegment(Vector(0.834228, 0.7, 0), Vector(1.162471, 0.7, 0)),  # 3
    Part.LineSegment(Vector(1.162471, 0.7, 0), Vector(2.213825, 2.189439, 0)),  # 4
    Part.LineSegment(Vector(2.213825, 2.189439, 0), Vector(2.511917, 3.88, 0)),  # 5
], False)
sketch14.addConstraint([
    Sketcher.Constraint("Coincident", 0, 2, 1, 1),
    Sketcher.Constraint("Coincident", 1, 2, 2, 1),
    Sketcher.Constraint("Coincident", 2, 2, 3, 1),
    Sketcher.Constraint("Coincident", 3, 2, 4, 1),
    Sketcher.Constraint("Coincident", 4, 2, 5, 1),
    Sketcher.Constraint("Coincident", 5, 2, 0, 1),
    Sketcher.Constraint("Horizontal", 0),
    Sketcher.Constraint("Horizontal", 3),
    Sketcher.Constraint("Parallel", 1, 4),
    Sketcher.Constraint("Parallel", 2, 5),
    Sketcher.Constraint("Angle", 2, Q("-100 deg")),
    Sketcher.Constraint("DistanceY", -1, 1, 2, 2, 0.7),
    Sketcher.Constraint("DistanceY", -1, 1, 0, 2, 3.88),
    Sketcher.Constraint("Distance", 5, 1.71664),
    Sketcher.Constraint("DistanceX", 0, 2, 0, 1, 0.328804),
    Sketcher.Constraint("DistanceX", 3, 1, 3, 2, 0.328243),
    Sketcher.Constraint("DistanceX", -1, 1, 3, 2, 1.162471),
    Sketcher.Constraint("DistanceX", 1, 2, 4, 2, 1.081319),
])
pad14 = doc.addObject("PartDesign::Pad", "Pad013")
body14.addObject(pad14)
pad14.Profile = sketch14
pad14.Length = 1
body15 = doc.addObject("PartDesign::Body", "Body014")

# Sketch on XY plane
sketch15 = doc.addObject("Sketcher::SketchObject", "Sketch014")
body15.addObject(sketch15)
sketch15.AttachmentSupport = (doc.getObject("XY_Plane014"), [""])
sketch15.MapMode = "FlatFace"
sketch15.addGeometry([
    Part.LineSegment(Vector(-0.984913, 0.7, 0), Vector(-0.58737, 0.7, 0)),  # 0
    Part.LineSegment(Vector(-0.58737, 0.7, 0), Vector(-0.307495, 2.287249, 0)),  # 1
    Part.LineSegment(Vector(-0.307495, 2.287249, 0), Vector(-0.866442, 3.88, 0)),  # 2
    Part.LineSegment(Vector(-0.866442, 3.88, 0), Vector(-1.143619, 3.88, 0)),  # 3
    Part.LineSegment(Vector(-1.143619, 3.88, 0), Vector(-1.405342, 2.395697, 0)),  # 4
    Part.LineSegment(Vector(-1.405342, 2.395697, 0), Vector(-0.984913, 0.7, 0)),  # 5
], False)
sketch15.addConstraint([
    Sketcher.Constraint("Coincident", 0, 2, 1, 1),
    Sketcher.Constraint("Coincident", 1, 2, 2, 1),
    Sketcher.Constraint("Coincident", 2, 2, 3, 1),
    Sketcher.Constraint("Coincident", 3, 2, 4, 1),
    Sketcher.Constraint("Coincident", 4, 2, 5, 1),
    Sketcher.Constraint("Coincident", 5, 2, 0, 1),
    Sketcher.Constraint("Horizontal", 0),
    Sketcher.Constraint("Horizontal", 3),
    Sketcher.Constraint("Parallel", 1, 4),
    Sketcher.Constraint("Angle", 1, Q("80 deg")),
    Sketcher.Constraint("DistanceY", -1, 1, 0, 2, 0.7),
    Sketcher.Constraint("DistanceY", -1, 1, 2, 2, 3.88),
    Sketcher.Constraint("Distance", 4, 1.507201),
    Sketcher.Constraint("DistanceX", 4, 2, 2, 2, 0.5389),
    Sketcher.Constraint("Distance", 2, 1.68798),
    Sketcher.Constraint("Distance", 5, 1.74704),
    Sketcher.Constraint("DistanceX", 0, 1, 0, 2, 0.397544),
    Sketcher.Constraint("DistanceX", 0, 2, -1, 1, 0.58737),
])
pad15 = doc.addObject("PartDesign::Pad", "Pad014")
body15.addObject(pad15)
pad15.Profile = sketch15
pad15.Length = 1

doc.recompute()
